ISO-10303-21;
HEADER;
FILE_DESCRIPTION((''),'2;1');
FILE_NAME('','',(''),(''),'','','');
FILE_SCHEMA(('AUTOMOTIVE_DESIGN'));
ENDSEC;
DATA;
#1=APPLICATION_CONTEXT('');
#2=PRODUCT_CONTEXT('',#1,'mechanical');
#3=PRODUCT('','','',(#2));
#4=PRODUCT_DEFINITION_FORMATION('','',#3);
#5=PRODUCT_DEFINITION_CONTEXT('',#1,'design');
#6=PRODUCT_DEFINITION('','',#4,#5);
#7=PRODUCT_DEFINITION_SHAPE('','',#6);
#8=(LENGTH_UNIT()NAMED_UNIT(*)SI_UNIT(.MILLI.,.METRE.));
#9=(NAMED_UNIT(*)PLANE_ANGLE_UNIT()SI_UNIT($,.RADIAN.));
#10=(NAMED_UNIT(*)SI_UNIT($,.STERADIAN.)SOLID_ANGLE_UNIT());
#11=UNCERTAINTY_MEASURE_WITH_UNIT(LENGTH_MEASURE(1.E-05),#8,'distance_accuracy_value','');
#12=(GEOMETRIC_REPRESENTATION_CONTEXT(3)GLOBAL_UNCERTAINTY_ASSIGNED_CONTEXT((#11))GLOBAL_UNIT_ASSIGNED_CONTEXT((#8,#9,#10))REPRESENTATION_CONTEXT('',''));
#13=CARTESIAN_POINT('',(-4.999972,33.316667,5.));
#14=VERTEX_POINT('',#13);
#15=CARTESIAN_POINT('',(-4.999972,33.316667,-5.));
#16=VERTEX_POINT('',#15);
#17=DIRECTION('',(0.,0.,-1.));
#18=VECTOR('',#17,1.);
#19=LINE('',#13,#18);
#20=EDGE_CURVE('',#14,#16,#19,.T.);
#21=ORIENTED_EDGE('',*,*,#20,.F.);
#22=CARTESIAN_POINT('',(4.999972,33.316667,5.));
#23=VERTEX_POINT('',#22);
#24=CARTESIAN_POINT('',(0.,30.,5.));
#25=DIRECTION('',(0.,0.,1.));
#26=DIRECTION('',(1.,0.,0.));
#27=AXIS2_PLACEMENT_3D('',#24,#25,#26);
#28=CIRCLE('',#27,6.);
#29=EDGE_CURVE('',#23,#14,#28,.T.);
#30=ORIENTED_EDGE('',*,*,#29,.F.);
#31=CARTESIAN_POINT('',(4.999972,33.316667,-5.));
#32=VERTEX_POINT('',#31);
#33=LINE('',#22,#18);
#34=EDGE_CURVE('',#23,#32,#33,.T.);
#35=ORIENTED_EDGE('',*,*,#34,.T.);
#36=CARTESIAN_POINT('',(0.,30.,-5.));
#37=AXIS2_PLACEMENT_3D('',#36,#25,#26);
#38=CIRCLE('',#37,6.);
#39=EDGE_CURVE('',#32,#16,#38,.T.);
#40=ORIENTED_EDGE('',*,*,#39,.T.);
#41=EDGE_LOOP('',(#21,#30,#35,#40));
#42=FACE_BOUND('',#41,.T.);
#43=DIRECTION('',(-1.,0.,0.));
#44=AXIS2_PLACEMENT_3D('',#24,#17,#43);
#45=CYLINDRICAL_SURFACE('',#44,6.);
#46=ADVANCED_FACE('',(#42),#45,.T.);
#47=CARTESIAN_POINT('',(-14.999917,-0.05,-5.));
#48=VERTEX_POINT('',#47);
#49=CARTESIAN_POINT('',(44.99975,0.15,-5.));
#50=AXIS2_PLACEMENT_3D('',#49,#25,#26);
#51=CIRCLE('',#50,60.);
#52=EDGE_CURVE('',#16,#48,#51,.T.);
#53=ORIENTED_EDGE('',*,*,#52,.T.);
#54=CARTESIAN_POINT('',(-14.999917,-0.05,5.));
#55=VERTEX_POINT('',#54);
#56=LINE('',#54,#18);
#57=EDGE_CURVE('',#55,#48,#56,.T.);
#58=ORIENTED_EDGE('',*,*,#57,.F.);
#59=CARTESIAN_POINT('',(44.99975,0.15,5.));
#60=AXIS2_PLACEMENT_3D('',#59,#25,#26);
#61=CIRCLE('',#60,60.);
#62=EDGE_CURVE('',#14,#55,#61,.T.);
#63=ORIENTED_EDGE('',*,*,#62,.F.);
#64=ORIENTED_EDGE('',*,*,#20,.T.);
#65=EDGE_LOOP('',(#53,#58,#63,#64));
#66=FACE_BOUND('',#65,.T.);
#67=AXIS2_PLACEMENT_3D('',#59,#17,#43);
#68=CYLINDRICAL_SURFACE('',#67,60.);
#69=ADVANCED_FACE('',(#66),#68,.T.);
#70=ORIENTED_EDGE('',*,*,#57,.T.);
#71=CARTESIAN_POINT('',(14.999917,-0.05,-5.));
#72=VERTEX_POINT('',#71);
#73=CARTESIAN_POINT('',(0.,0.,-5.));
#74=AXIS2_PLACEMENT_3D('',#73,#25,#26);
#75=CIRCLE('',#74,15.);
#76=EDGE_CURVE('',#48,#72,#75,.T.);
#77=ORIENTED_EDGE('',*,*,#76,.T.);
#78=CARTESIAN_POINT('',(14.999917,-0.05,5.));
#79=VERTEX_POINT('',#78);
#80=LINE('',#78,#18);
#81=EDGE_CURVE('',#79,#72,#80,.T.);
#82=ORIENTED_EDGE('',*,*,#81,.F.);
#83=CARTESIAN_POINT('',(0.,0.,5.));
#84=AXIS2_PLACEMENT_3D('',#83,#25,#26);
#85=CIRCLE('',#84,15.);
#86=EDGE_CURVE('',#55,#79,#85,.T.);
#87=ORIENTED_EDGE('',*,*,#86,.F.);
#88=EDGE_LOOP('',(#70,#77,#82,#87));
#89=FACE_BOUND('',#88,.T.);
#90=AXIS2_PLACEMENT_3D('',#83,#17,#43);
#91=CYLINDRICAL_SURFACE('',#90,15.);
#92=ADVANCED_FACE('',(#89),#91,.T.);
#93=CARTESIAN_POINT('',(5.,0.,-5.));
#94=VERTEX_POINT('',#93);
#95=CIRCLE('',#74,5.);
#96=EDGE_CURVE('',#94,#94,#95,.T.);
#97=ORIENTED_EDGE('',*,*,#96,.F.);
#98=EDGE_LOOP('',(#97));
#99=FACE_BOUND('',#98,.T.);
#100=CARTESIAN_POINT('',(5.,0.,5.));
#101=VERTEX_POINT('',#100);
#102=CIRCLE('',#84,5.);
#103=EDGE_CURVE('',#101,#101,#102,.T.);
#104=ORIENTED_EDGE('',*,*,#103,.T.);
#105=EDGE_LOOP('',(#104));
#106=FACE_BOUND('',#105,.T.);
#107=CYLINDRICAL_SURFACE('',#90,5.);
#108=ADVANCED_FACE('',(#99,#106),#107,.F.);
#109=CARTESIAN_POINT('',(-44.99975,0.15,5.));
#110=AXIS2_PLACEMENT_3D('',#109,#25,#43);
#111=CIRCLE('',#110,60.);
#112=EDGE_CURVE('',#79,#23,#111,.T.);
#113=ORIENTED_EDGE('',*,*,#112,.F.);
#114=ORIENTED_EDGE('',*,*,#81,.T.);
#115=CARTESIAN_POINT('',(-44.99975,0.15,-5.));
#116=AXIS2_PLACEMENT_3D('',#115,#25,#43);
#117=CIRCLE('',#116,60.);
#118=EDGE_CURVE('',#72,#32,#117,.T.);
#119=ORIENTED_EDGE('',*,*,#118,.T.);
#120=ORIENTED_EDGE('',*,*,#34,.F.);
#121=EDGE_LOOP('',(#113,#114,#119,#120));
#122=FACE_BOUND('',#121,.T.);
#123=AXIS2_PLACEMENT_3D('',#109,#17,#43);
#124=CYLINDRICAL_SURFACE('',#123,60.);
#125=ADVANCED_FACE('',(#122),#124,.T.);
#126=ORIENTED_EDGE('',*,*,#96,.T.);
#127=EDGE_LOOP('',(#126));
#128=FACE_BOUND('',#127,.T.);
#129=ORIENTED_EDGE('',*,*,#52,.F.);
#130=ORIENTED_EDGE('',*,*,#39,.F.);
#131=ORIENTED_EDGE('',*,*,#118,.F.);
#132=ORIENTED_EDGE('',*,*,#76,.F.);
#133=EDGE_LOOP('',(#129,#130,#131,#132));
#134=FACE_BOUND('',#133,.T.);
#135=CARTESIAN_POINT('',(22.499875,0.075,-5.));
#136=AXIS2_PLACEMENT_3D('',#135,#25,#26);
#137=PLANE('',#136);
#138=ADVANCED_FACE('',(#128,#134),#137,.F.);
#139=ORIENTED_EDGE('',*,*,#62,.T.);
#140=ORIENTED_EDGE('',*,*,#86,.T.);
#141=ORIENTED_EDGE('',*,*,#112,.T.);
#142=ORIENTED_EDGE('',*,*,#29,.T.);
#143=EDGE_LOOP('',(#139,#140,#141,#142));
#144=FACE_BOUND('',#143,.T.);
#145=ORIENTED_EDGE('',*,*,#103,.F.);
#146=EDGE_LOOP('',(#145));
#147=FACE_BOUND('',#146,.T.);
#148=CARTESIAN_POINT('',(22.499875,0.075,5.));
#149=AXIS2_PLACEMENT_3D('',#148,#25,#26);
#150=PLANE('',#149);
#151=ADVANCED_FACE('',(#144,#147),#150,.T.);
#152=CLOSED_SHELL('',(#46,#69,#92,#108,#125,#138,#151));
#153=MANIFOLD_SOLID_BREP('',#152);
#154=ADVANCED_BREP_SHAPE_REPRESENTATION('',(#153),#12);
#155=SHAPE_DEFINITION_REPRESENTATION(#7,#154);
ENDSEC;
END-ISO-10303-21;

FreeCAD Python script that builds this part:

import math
import FreeCAD as App
import Part
import Sketcher

doc = App.newDocument("Part")
body = doc.addObject("PartDesign::Body", "Body")

# Sketch on XY plane
sketch1 = body.newObject("Sketcher::SketchObject", "Sketch")
sketch1.AttachmentSupport = (doc.getObject("XY_Plane"), [""])
sketch1.MapMode = "FlatFace"
sketch1.addGeometry(Part.ArcOfCircle(Part.Circle(App.Vector(0, 0, 0), App.Vector(0, 0, 1), 15), math.radians(-180), math.radians(0)), False)
sketch1.addGeometry(Part.ArcOfCircle(Part.Circle(App.Vector(-45, 0, 0), App.Vector(0, 0, 1), 60), math.radians(0), math.radians(34)), False)
sketch1.addGeometry(Part.ArcOfCircle(Part.Circle(App.Vector(0, 30, 0), App.Vector(0, 0, 1), 6), math.radians(34), math.radians(146)), False)
sketch1.addGeometry(Part.ArcOfCircle(Part.Circle(App.Vector(45, 0, 0), App.Vector(0, 0, 1), 60), math.radians(146), math.radians(180)), False)
sketch1.addGeometry(Part.Circle(App.Vector(0, 0, 0), App.Vector(0, 0, 1), 5), False)
sketch1.addConstraint(Sketcher.Constraint("Tangent", 0, 2, 1, 1))
sketch1.addConstraint(Sketcher.Constraint("Tangent", 1, 2, 2, 1))
sketch1.addConstraint(Sketcher.Constraint("Tangent", 2, 2, 3, 1))
sketch1.addConstraint(Sketcher.Constraint("Tangent", 3, 2, 0, 1))
sketch1.addConstraint(Sketcher.Constraint("Coincident", 0, 3, -1, 1))
sketch1.addConstraint(Sketcher.Constraint("Coincident", 4, 3, -1, 1))
sketch1.addConstraint(Sketcher.Constraint("Equal", 1, 3))
sketch1.addConstraint(Sketcher.Constraint("PointOnObject", 2, 3, -2))
sketch1.addConstraint(Sketcher.Constraint("Diameter", 4, 10.0))
sketch1.addConstraint(Sketcher.Constraint("Radius", 0, 15.0))
sketch1.addConstraint(Sketcher.Constraint("Radius", 1, 60.0))
sketch1.addConstraint(Sketcher.Constraint("Radius", 2, 6.0))
sketch1.addConstraint(Sketcher.Constraint("DistanceY", -1, 1, 2, 3, 30.0))
pad1 = body.newObject("PartDesign::Pad", "Pad")
pad1.Profile = sketch1
pad1.Length = 10
pad1.Midplane = True

doc.recompute()
